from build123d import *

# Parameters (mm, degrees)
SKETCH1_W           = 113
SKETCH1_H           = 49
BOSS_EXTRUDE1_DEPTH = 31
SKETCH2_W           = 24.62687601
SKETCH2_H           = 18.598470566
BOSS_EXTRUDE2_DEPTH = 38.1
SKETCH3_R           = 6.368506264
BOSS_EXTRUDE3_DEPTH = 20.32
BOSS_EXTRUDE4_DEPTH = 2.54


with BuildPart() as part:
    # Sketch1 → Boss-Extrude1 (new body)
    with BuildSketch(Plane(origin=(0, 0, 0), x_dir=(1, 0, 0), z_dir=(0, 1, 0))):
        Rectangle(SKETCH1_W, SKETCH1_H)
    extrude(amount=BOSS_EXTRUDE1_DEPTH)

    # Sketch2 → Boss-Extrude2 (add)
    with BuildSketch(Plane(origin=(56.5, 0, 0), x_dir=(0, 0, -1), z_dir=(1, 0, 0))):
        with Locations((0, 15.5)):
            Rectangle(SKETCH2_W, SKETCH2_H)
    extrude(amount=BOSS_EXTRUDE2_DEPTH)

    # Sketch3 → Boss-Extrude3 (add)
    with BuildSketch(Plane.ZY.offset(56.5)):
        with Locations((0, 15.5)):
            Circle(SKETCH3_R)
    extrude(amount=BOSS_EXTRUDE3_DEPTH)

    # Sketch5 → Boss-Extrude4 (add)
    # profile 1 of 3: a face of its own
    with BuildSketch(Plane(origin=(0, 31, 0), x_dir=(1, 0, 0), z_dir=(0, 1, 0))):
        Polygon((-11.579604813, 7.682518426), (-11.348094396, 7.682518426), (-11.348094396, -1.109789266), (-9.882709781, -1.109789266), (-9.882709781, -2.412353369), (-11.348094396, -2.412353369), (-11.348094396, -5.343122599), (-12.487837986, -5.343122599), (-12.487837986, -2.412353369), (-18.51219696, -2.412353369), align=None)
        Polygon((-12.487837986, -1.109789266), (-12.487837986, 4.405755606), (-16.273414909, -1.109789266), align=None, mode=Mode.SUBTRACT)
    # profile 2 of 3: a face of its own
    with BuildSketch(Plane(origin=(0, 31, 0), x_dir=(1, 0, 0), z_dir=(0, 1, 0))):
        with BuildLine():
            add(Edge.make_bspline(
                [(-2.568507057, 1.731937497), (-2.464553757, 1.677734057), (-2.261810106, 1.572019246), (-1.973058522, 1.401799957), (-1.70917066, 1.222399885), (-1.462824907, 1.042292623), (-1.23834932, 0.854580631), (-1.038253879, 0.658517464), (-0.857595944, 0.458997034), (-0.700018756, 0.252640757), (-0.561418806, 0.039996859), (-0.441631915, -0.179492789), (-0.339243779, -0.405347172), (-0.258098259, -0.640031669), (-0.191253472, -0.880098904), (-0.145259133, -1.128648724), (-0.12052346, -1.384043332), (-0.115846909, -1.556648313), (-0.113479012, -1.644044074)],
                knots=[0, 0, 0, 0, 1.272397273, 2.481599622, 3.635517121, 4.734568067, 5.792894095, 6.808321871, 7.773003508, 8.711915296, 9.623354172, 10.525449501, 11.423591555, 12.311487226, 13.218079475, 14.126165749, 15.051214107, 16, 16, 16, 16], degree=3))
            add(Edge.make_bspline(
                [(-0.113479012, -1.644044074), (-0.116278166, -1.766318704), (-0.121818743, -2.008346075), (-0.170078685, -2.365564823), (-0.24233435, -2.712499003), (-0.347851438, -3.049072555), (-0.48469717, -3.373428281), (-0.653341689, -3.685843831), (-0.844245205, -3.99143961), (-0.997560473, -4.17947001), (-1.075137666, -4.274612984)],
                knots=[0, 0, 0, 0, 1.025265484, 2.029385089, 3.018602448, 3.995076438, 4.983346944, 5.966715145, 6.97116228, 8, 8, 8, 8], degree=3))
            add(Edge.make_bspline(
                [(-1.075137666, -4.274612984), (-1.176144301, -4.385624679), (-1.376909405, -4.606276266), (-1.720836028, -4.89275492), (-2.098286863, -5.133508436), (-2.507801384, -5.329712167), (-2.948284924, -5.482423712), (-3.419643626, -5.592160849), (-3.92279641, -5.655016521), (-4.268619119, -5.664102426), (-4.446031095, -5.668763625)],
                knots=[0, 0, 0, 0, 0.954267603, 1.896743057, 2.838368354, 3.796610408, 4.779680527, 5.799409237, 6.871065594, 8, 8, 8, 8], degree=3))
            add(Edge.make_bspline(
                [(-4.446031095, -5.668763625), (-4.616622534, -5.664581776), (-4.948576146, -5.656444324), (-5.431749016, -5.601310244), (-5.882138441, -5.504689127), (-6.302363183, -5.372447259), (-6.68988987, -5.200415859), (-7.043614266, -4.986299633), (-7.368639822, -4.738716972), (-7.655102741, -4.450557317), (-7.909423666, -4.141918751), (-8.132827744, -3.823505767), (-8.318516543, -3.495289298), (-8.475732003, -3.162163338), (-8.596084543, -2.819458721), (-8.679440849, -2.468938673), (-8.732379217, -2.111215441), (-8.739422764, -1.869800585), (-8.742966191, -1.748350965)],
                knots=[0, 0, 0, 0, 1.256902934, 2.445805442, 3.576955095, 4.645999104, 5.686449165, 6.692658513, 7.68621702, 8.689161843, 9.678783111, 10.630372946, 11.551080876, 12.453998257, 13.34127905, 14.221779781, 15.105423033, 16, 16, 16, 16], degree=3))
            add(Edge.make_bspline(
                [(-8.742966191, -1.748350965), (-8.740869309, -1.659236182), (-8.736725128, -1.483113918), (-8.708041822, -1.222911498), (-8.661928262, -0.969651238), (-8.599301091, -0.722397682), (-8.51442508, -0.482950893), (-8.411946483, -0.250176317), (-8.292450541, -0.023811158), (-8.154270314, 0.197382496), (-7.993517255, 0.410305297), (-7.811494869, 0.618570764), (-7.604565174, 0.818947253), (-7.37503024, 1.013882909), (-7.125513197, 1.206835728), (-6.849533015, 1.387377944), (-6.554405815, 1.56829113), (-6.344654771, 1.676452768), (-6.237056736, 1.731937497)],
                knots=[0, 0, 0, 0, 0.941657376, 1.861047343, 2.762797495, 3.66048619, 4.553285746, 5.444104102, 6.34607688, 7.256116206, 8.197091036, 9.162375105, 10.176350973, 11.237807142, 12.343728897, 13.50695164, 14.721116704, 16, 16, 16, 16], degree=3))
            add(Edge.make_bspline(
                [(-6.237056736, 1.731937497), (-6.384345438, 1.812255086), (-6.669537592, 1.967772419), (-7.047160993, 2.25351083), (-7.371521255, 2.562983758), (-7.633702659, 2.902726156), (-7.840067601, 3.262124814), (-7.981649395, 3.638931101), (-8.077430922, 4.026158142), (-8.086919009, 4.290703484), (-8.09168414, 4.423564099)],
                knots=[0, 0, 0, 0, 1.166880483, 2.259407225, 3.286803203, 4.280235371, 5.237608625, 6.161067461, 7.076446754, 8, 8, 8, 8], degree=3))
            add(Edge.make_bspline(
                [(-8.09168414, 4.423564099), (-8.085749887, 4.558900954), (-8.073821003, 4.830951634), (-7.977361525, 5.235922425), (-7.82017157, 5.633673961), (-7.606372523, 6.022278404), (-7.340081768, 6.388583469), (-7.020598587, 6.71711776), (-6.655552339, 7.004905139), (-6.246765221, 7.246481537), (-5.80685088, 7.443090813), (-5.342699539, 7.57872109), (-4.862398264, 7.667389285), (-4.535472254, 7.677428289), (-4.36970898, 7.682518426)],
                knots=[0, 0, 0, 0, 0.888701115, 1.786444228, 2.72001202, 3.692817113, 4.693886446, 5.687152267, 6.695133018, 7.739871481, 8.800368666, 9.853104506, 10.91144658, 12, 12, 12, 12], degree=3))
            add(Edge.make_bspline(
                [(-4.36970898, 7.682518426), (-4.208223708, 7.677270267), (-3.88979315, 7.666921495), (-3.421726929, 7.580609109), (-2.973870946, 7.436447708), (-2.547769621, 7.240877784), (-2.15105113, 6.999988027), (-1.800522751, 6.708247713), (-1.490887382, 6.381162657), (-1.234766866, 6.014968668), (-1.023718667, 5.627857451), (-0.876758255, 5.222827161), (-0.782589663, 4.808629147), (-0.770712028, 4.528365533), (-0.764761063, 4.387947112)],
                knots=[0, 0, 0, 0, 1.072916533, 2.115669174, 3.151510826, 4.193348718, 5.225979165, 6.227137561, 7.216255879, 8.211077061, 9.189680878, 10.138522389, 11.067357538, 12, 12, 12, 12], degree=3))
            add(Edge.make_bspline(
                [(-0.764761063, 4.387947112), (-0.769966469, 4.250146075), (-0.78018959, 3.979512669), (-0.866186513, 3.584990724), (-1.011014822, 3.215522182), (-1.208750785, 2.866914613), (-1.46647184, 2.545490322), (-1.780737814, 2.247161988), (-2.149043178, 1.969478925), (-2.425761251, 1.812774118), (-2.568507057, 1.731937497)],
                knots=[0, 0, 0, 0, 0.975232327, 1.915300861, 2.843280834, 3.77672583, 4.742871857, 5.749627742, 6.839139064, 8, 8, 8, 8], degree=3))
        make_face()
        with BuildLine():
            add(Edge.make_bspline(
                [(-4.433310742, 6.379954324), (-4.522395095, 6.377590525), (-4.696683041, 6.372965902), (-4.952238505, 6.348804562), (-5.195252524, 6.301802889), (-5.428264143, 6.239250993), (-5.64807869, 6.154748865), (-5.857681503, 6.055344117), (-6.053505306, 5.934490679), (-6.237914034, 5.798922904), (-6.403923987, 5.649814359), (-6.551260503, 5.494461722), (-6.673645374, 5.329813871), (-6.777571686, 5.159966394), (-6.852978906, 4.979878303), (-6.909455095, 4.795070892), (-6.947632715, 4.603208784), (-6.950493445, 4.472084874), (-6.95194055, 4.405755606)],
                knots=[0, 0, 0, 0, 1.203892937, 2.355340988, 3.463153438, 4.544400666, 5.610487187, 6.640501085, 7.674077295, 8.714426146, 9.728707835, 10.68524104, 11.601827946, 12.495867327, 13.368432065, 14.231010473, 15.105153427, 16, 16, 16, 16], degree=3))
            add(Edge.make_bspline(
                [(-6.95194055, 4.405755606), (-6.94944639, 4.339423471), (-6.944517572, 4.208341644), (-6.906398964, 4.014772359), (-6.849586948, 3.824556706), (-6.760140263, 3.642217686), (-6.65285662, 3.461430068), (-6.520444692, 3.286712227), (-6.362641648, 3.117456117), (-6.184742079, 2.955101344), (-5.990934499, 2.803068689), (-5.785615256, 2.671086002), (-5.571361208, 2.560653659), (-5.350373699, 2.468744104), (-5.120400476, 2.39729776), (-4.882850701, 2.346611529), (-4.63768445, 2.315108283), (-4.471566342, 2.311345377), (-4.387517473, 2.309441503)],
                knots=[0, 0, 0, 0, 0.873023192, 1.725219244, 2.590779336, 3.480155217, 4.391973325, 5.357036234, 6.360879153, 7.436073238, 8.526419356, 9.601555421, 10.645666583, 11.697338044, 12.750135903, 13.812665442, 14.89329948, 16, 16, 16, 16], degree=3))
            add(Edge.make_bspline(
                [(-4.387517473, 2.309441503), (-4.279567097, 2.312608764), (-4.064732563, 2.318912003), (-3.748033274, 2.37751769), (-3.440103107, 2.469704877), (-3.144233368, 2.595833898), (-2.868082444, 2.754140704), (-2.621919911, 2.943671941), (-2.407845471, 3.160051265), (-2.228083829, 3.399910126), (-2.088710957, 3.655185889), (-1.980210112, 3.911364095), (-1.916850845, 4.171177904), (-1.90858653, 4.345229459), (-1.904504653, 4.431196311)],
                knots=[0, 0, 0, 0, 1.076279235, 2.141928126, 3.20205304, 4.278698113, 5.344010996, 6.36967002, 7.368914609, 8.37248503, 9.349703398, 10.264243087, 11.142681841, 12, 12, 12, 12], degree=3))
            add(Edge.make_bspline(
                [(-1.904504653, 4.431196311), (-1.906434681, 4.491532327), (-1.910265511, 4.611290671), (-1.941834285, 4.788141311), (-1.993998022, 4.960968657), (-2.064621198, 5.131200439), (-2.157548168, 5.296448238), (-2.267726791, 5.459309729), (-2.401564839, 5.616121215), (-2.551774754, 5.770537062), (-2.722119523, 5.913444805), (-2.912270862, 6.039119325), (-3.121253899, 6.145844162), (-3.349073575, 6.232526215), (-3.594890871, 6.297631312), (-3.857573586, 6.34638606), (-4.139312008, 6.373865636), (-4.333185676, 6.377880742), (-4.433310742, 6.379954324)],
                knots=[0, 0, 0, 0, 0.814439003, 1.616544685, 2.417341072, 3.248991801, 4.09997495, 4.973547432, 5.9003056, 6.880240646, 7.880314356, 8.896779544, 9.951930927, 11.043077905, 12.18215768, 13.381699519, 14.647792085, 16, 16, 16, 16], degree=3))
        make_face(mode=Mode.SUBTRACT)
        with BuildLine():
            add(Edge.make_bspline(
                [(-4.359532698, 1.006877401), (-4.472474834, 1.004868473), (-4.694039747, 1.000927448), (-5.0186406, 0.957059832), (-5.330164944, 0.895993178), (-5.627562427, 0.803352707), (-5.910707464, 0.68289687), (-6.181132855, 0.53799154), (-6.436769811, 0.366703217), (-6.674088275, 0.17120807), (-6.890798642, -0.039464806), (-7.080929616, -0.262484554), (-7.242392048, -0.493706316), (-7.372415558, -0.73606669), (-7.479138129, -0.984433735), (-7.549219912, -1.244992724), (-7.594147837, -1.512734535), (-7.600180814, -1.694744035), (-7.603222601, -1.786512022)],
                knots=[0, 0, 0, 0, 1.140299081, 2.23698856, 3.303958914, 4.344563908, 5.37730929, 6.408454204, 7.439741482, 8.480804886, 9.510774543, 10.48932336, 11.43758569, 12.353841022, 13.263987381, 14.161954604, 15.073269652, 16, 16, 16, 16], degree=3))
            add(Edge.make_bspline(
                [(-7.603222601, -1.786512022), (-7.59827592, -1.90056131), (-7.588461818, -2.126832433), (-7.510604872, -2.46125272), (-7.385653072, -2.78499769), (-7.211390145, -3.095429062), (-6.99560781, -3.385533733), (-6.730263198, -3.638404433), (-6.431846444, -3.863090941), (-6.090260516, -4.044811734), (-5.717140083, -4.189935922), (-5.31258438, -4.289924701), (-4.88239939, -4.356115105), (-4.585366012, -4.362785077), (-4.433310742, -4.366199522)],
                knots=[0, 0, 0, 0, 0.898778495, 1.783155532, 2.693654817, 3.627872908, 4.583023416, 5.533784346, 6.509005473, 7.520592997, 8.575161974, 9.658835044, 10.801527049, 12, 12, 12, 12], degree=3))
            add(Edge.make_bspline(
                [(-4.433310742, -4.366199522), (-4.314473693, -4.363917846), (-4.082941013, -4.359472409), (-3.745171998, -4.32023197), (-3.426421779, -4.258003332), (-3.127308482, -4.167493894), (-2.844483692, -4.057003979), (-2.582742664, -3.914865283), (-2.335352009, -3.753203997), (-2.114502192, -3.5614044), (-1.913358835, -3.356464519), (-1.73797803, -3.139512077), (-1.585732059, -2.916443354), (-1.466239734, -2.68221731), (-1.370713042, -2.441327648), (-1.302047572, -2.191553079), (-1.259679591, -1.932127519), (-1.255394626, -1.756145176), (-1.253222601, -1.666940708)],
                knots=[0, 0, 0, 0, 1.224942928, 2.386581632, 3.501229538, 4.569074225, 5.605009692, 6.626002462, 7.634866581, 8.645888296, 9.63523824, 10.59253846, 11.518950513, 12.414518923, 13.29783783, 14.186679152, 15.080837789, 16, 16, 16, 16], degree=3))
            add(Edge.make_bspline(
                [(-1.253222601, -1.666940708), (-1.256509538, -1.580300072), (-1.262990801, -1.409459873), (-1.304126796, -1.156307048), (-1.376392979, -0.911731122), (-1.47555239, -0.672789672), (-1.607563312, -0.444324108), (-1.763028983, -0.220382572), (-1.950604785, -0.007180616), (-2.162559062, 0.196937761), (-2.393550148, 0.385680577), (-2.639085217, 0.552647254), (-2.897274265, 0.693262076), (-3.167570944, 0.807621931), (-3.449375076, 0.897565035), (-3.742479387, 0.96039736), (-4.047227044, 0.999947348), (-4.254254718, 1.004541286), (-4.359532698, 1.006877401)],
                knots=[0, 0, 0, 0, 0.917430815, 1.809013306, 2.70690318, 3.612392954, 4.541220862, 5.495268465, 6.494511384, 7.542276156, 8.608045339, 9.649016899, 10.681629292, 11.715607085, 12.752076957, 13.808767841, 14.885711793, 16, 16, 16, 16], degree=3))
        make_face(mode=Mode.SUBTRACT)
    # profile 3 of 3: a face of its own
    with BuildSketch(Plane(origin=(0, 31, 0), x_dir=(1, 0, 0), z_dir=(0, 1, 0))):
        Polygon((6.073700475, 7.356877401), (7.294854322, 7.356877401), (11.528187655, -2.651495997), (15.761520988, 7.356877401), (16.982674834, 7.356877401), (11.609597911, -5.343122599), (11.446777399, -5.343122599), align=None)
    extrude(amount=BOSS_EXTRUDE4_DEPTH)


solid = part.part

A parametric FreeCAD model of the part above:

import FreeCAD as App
import Part
import Sketcher

V = App.Vector
Q = App.Units.Quantity


def add_polygon(sketch, points):
    """Adds a closed chain of lines whose ends are joined by coincident constraints."""
    first, n = sketch.GeometryCount, len(points)
    for a, b in zip(points, points[1:] + points[:1]):
        sketch.addGeometry(Part.LineSegment(App.Vector(*a, 0), App.Vector(*b, 0)), False)
    for i in range(n):
        sketch.addConstraint(Sketcher.Constraint("Coincident", first + i, 2, first + (i + 1) % n, 1))

doc = App.newDocument("Part")
params = doc.addObject("Spreadsheet::Sheet", "Params")
for row, (alias, value) in enumerate([
    ("sketch1_width", "113 mm"),
    ("sketch1_height", "49 mm"),
    ("pad1_length", "31 mm"),
    ("pad2_length", "38.1 mm"),
    ("pad3_length", "20.32 mm"),
    ("pad4_length", "2.54 mm"),
], start=1):
    params.set(f"A{row}", alias)
    params.set(f"B{row}", "=" + value)
    params.setAlias(f"B{row}", alias)

body = doc.addObject("PartDesign::Body", "Body")

sketch1 = doc.addObject("Sketcher::SketchObject", "Sketch")
body.addObject(sketch1)
sketch1.AttachmentSupport = (doc.XZ_Plane, [""])
sketch1.MapMode = "FlatFace"
add_polygon(sketch1, [(-56, -24), (-56, 24), (56, 24), (56, -24)])
sketch1.addConstraint([
    Sketcher.Constraint("Vertical", 0),
    Sketcher.Constraint("Horizontal", 1),
    Sketcher.Constraint("Vertical", 2),
    Sketcher.Constraint("Horizontal", 3),
    Sketcher.Constraint("Symmetric", 0, 2, 2, 2, -1, 1),
    Sketcher.Constraint("DistanceX", 1, 1, 1, 2, Q("113 mm")),
    Sketcher.Constraint("DistanceY", 0, 1, 0, 2, Q("49 mm")),
])
sketch1.setExpression("Constraints[9]", "Params.sketch1_width")
sketch1.setExpression("Constraints[10]", "Params.sketch1_height")
pad1 = doc.addObject("PartDesign::Pad", "Pad")
body.addObject(pad1)
pad1.Profile = sketch1
pad1.setExpression("Length", "Params.pad1_length")
pad1.Reversed = True

sketch2 = doc.addObject("Sketcher::SketchObject", "Sketch001")
body.addObject(sketch2)
sketch2.AttachmentSupport = (doc.YZ_Plane, [""])
sketch2.MapMode = "FlatFace"
sketch2.AttachmentOffset = App.Placement(V(0, 0, 56.5), App.Rotation())
add_polygon(sketch2, [(25, 12), (6, 12), (6, -12), (25, -12)])
sketch2.addConstraint([
    Sketcher.Constraint("Horizontal", 0),
    Sketcher.Constraint("Vertical", 1),
    Sketcher.Constraint("Horizontal", 2),
    Sketcher.Constraint("Vertical", 3),
    Sketcher.Constraint("DistanceX", 0, 2, 0, 1, Q("18.598471 mm")),
    Sketcher.Constraint("DistanceY", 1, 2, 1, 1, Q("24.626876 mm")),
    Sketcher.Constraint("DistanceY", -1, 1, 0, 2, Q("12.313438 mm")),
    Sketcher.Constraint("DistanceX", -1, 1, 0, 2, Q("6.200765 mm")),
])
pad2 = doc.addObject("PartDesign::Pad", "Pad001")
body.addObject(pad2)
pad2.Profile = sketch2
pad2.setExpression("Length", "Params.pad2_length")

sketch3 = doc.addObject("Sketcher::SketchObject", "Sketch002")
body.addObject(sketch3)
sketch3.AttachmentSupport = (doc.YZ_Plane, [""])
sketch3.MapMode = "FlatFace"
sketch3.AttachmentOffset = App.Placement(V(0, 0, -56.5), App.Rotation())
sketch3.addGeometry(Part.Circle(V(16, 0, 0), V(0, 0, 1), 6), False)
sketch3.addConstraint([
    Sketcher.Constraint("PointOnObject", 0, 3, -1),
    Sketcher.Constraint("DistanceX", -1, 1, 0, 3, Q("15.5 mm")),
    Sketcher.Constraint("Diameter", 0, Q("12.737013 mm")),
])
pad3 = doc.addObject("PartDesign::Pad", "Pad002")
body.addObject(pad3)
pad3.Profile = sketch3
pad3.setExpression("Length", "Params.pad3_length")
pad3.Reversed = True

sketch4 = doc.addObject("Sketcher::SketchObject", "Sketch003")
body.addObject(sketch4)
sketch4.AttachmentSupport = (doc.XZ_Plane, [""])
sketch4.MapMode = "FlatFace"
sketch4.AttachmentOffset = App.Placement(V(0, 0, -31), App.Rotation())
add_polygon(sketch4, [(-11.348094, -7.682518), (-11.579605, -7.682518), (-18.512197, 2.412353), (-12.487838, 2.412353), (-12.487838, 5.343123), (-11.348094, 5.343123), (-11.348094, 2.412353), (-9.88271, 2.412353), (-9.88271, 1.109789), (-11.348094, 1.109789)])
add_polygon(sketch4, [(-12.487838, 1.109789), (-16.273415, 1.109789), (-12.487838, -4.405756)])
sketch4.addGeometry(Part.BSplineCurve([V(-2.568507, -1.731937, 0), V(-2.464554, -1.677734, 0), V(-2.26181, -1.572019, 0), V(-1.973059, -1.4018, 0), V(-1.709171, -1.2224, 0), V(-1.462825, -1.042293, 0), V(-1.238349, -0.854581, 0), V(-1.038254, -0.658517, 0), V(-0.857596, -0.458997, 0), V(-0.700019, -0.252641, 0), V(-0.561419, -0.039997, 0), V(-0.441632, 0.179493, 0), V(-0.339244, 0.405347, 0), V(-0.258098, 0.640032, 0), V(-0.191253, 0.880099, 0), V(-0.145259, 1.128649, 0), V(-0.120523, 1.384043, 0), V(-0.115847, 1.556648, 0), V(-0.113479, 1.644044, 0)], [4, 1, 1, 1, 1, 1, 1, 1, 1, 1, 1, 1, 1, 1, 1, 1, 4], [0, 1.272397273, 2.481599622, 3.635517121, 4.734568067, 5.792894095, 6.808321871, 7.773003508, 8.711915296, 9.623354172, 10.525449501, 11.423591555, 12.311487226, 13.218079475, 14.126165749, 15.051214107, 16], False, 3, [1, 1, 1, 1, 1, 1, 1, 1, 1, 1, 1, 1, 1, 1, 1, 1, 1, 1, 1], False), False)
sketch4.addGeometry(Part.BSplineCurve([V(-0.764761, -4.387947, 0), V(-0.769966, -4.250146, 0), V(-0.78019, -3.979513, 0), V(-0.866187, -3.584991, 0), V(-1.011015, -3.215522, 0), V(-1.208751, -2.866915, 0), V(-1.466472, -2.54549, 0), V(-1.780738, -2.247162, 0), V(-2.149043, -1.969479, 0), V(-2.425761, -1.812774, 0), V(-2.568507, -1.731937, 0)], [4, 1, 1, 1, 1, 1, 1, 1, 4], [0, 0.975232327, 1.915300861, 2.843280834, 3.77672583, 4.742871857, 5.749627742, 6.839139064, 8], False, 3, [1, 1, 1, 1, 1, 1, 1, 1, 1, 1, 1], False), False)
sketch4.addGeometry(Part.BSplineCurve([V(-4.369709, -7.682518, 0), V(-4.208224, -7.67727, 0), V(-3.889793, -7.666921, 0), V(-3.421727, -7.580609, 0), V(-2.973871, -7.436448, 0), V(-2.54777, -7.240878, 0), V(-2.151051, -6.999988, 0), V(-1.800523, -6.708248, 0), V(-1.490887, -6.381163, 0), V(-1.234767, -6.014969, 0), V(-1.023719, -5.627857, 0), V(-0.876758, -5.222827, 0), V(-0.78259, -4.808629, 0), V(-0.770712, -4.528366, 0), V(-0.764761, -4.387947, 0)], [4, 1, 1, 1, 1, 1, 1, 1, 1, 1, 1, 1, 4], [0, 1.072916533, 2.115669174, 3.151510826, 4.193348718, 5.225979165, 6.227137561, 7.216255879, 8.211077061, 9.189680878, 10.138522389, 11.067357538, 12], False, 3, [1, 1, 1, 1, 1, 1, 1, 1, 1, 1, 1, 1, 1, 1, 1], False), False)
sketch4.addGeometry(Part.BSplineCurve([V(-8.091684, -4.423564, 0), V(-8.08575, -4.558901, 0), V(-8.073821, -4.830952, 0), V(-7.977362, -5.235922, 0), V(-7.820172, -5.633674, 0), V(-7.606373, -6.022278, 0), V(-7.340082, -6.388583, 0), V(-7.020599, -6.717118, 0), V(-6.655552, -7.004905, 0), V(-6.246765, -7.246482, 0), V(-5.806851, -7.443091, 0), V(-5.3427, -7.578721, 0), V(-4.862398, -7.667389, 0), V(-4.535472, -7.677428, 0), V(-4.369709, -7.682518, 0)], [4, 1, 1, 1, 1, 1, 1, 1, 1, 1, 1, 1, 4], [0, 0.888701115, 1.786444228, 2.72001202, 3.692817113, 4.693886446, 5.687152267, 6.695133018, 7.739871481, 8.800368666, 9.853104506, 10.91144658, 12], False, 3, [1, 1, 1, 1, 1, 1, 1, 1, 1, 1, 1, 1, 1, 1, 1], False), False)
sketch4.addGeometry(Part.BSplineCurve([V(-6.237057, -1.731937, 0), V(-6.384345, -1.812255, 0), V(-6.669538, -1.967772, 0), V(-7.047161, -2.253511, 0), V(-7.371521, -2.562984, 0), V(-7.633703, -2.902726, 0), V(-7.840068, -3.262125, 0), V(-7.981649, -3.638931, 0), V(-8.077431, -4.026158, 0), V(-8.086919, -4.290703, 0), V(-8.091684, -4.423564, 0)], [4, 1, 1, 1, 1, 1, 1, 1, 4], [0, 1.166880483, 2.259407225, 3.286803203, 4.280235371, 5.237608625, 6.161067461, 7.076446754, 8], False, 3, [1, 1, 1, 1, 1, 1, 1, 1, 1, 1, 1], False), False)
sketch4.addGeometry(Part.BSplineCurve([V(-8.742966, 1.748351, 0), V(-8.740869, 1.659236, 0), V(-8.736725, 1.483114, 0), V(-8.708042, 1.222911, 0), V(-8.661928, 0.969651, 0), V(-8.599301, 0.722398, 0), V(-8.514425, 0.482951, 0), V(-8.411946, 0.250176, 0), V(-8.292451, 0.023811, 0), V(-8.15427, -0.197382, 0), V(-7.993517, -0.410305, 0), V(-7.811495, -0.618571, 0), V(-7.604565, -0.818947, 0), V(-7.37503, -1.013883, 0), V(-7.125513, -1.206836, 0), V(-6.849533, -1.387378, 0), V(-6.554406, -1.568291, 0), V(-6.344655, -1.676453, 0), V(-6.237057, -1.731937, 0)], [4, 1, 1, 1, 1, 1, 1, 1, 1, 1, 1, 1, 1, 1, 1, 1, 4], [0, 0.941657376, 1.861047343, 2.762797495, 3.66048619, 4.553285746, 5.444104102, 6.34607688, 7.256116206, 8.197091036, 9.162375105, 10.176350973, 11.237807142, 12.343728897, 13.50695164, 14.721116704, 16], False, 3, [1, 1, 1, 1, 1, 1, 1, 1, 1, 1, 1, 1, 1, 1, 1, 1, 1, 1, 1], False), False)
sketch4.addGeometry(Part.BSplineCurve([V(-4.446031, 5.668764, 0), V(-4.616623, 5.664582, 0), V(-4.948576, 5.656444, 0), V(-5.431749, 5.60131, 0), V(-5.882138, 5.504689, 0), V(-6.302363, 5.372447, 0), V(-6.68989, 5.200416, 0), V(-7.043614, 4.9863, 0), V(-7.36864, 4.738717, 0), V(-7.655103, 4.450557, 0), V(-7.909424, 4.141919, 0), V(-8.132828, 3.823506, 0), V(-8.318517, 3.495289, 0), V(-8.475732, 3.162163, 0), V(-8.596085, 2.819459, 0), V(-8.679441, 2.468939, 0), V(-8.732379, 2.111215, 0), V(-8.739423, 1.869801, 0), V(-8.742966, 1.748351, 0)], [4, 1, 1, 1, 1, 1, 1, 1, 1, 1, 1, 1, 1, 1, 1, 1, 4], [0, 1.256902934, 2.445805442, 3.576955095, 4.645999104, 5.686449165, 6.692658513, 7.68621702, 8.689161843, 9.678783111, 10.630372946, 11.551080876, 12.453998257, 13.34127905, 14.221779781, 15.105423033, 16], False, 3, [1, 1, 1, 1, 1, 1, 1, 1, 1, 1, 1, 1, 1, 1, 1, 1, 1, 1, 1], False), False)
sketch4.addGeometry(Part.BSplineCurve([V(-1.075138, 4.274613, 0), V(-1.176144, 4.385625, 0), V(-1.376909, 4.606276, 0), V(-1.720836, 4.892755, 0), V(-2.098287, 5.133508, 0), V(-2.507801, 5.329712, 0), V(-2.948285, 5.482424, 0), V(-3.419644, 5.592161, 0), V(-3.922796, 5.655017, 0), V(-4.268619, 5.664102, 0), V(-4.446031, 5.668764, 0)], [4, 1, 1, 1, 1, 1, 1, 1, 4], [0, 0.954267603, 1.896743057, 2.838368354, 3.796610408, 4.779680527, 5.799409237, 6.871065594, 8], False, 3, [1, 1, 1, 1, 1, 1, 1, 1, 1, 1, 1], False), False)
sketch4.addGeometry(Part.BSplineCurve([V(-0.113479, 1.644044, 0), V(-0.116278, 1.766319, 0), V(-0.121819, 2.008346, 0), V(-0.170079, 2.365565, 0), V(-0.242334, 2.712499, 0), V(-0.347851, 3.049073, 0), V(-0.484697, 3.373428, 0), V(-0.653342, 3.685844, 0), V(-0.844245, 3.99144, 0), V(-0.99756, 4.17947, 0), V(-1.075138, 4.274613, 0)], [4, 1, 1, 1, 1, 1, 1, 1, 4], [0, 1.025265484, 2.029385089, 3.018602448, 3.995076438, 4.983346944, 5.966715145, 6.97116228, 8], False, 3, [1, 1, 1, 1, 1, 1, 1, 1, 1, 1, 1], False), False)
sketch4.addGeometry(Part.BSplineCurve([V(-1.253223, 1.666941, 0), V(-1.25651, 1.5803, 0), V(-1.262991, 1.40946, 0), V(-1.304127, 1.156307, 0), V(-1.376393, 0.911731, 0), V(-1.475552, 0.67279, 0), V(-1.607563, 0.444324, 0), V(-1.763029, 0.220383, 0), V(-1.950605, 0.007181, 0), V(-2.162559, -0.196938, 0), V(-2.39355, -0.385681, 0), V(-2.639085, -0.552647, 0), V(-2.897274, -0.693262, 0), V(-3.167571, -0.807622, 0), V(-3.449375, -0.897565, 0), V(-3.742479, -0.960397, 0), V(-4.047227, -0.999947, 0), V(-4.254255, -1.004541, 0), V(-4.359533, -1.006877, 0)], [4, 1, 1, 1, 1, 1, 1, 1, 1, 1, 1, 1, 1, 1, 1, 1, 4], [0, 0.917430815, 1.809013306, 2.70690318, 3.612392954, 4.541220862, 5.495268465, 6.494511384, 7.542276156, 8.608045339, 9.649016899, 10.681629292, 11.715607085, 12.752076957, 13.808767841, 14.885711793, 16], False, 3, [1, 1, 1, 1, 1, 1, 1, 1, 1, 1, 1, 1, 1, 1, 1, 1, 1, 1, 1], False), False)
sketch4.addGeometry(Part.BSplineCurve([V(-4.433311, 4.3662, 0), V(-4.314474, 4.363918, 0), V(-4.082941, 4.359472, 0), V(-3.745172, 4.320232, 0), V(-3.426422, 4.258003, 0), V(-3.127308, 4.167494, 0), V(-2.844484, 4.057004, 0), V(-2.582743, 3.914865, 0), V(-2.335352, 3.753204, 0), V(-2.114502, 3.561404, 0), V(-1.913359, 3.356465, 0), V(-1.737978, 3.139512, 0), V(-1.585732, 2.916443, 0), V(-1.46624, 2.682217, 0), V(-1.370713, 2.441328, 0), V(-1.302048, 2.191553, 0), V(-1.25968, 1.932128, 0), V(-1.255395, 1.756145, 0), V(-1.253223, 1.666941, 0)], [4, 1, 1, 1, 1, 1, 1, 1, 1, 1, 1, 1, 1, 1, 1, 1, 4], [0, 1.224942928, 2.386581632, 3.501229538, 4.569074225, 5.605009692, 6.626002462, 7.634866581, 8.645888296, 9.63523824, 10.59253846, 11.518950513, 12.414518923, 13.29783783, 14.186679152, 15.080837789, 16], False, 3, [1, 1, 1, 1, 1, 1, 1, 1, 1, 1, 1, 1, 1, 1, 1, 1, 1, 1, 1], False), False)
sketch4.addGeometry(Part.BSplineCurve([V(-7.603223, 1.786512, 0), V(-7.598276, 1.900561, 0), V(-7.588462, 2.126832, 0), V(-7.510605, 2.461253, 0), V(-7.385653, 2.784998, 0), V(-7.21139, 3.095429, 0), V(-6.995608, 3.385534, 0), V(-6.730263, 3.638404, 0), V(-6.431846, 3.863091, 0), V(-6.090261, 4.044812, 0), V(-5.71714, 4.189936, 0), V(-5.312584, 4.289925, 0), V(-4.882399, 4.356115, 0), V(-4.585366, 4.362785, 0), V(-4.433311, 4.3662, 0)], [4, 1, 1, 1, 1, 1, 1, 1, 1, 1, 1, 1, 4], [0, 0.898778495, 1.783155532, 2.693654817, 3.627872908, 4.583023416, 5.533784346, 6.509005473, 7.520592997, 8.575161974, 9.658835044, 10.801527049, 12], False, 3, [1, 1, 1, 1, 1, 1, 1, 1, 1, 1, 1, 1, 1, 1, 1], False), False)
sketch4.addGeometry(Part.BSplineCurve([V(-4.359533, -1.006877, 0), V(-4.472475, -1.004868, 0), V(-4.69404, -1.000927, 0), V(-5.018641, -0.95706, 0), V(-5.330165, -0.895993, 0), V(-5.627562, -0.803353, 0), V(-5.910707, -0.682897, 0), V(-6.181133, -0.537992, 0), V(-6.43677, -0.366703, 0), V(-6.674088, -0.171208, 0), V(-6.890799, 0.039465, 0), V(-7.08093, 0.262485, 0), V(-7.242392, 0.493706, 0), V(-7.372416, 0.736067, 0), V(-7.479138, 0.984434, 0), V(-7.54922, 1.244993, 0), V(-7.594148, 1.512735, 0), V(-7.600181, 1.694744, 0), V(-7.603223, 1.786512, 0)], [4, 1, 1, 1, 1, 1, 1, 1, 1, 1, 1, 1, 1, 1, 1, 1, 4], [0, 1.140299081, 2.23698856, 3.303958914, 4.344563908, 5.37730929, 6.408454204, 7.439741482, 8.480804886, 9.510774543, 10.48932336, 11.43758569, 12.353841022, 13.263987381, 14.161954604, 15.073269652, 16], False, 3, [1, 1, 1, 1, 1, 1, 1, 1, 1, 1, 1, 1, 1, 1, 1, 1, 1, 1, 1], False), False)
sketch4.addGeometry(Part.BSplineCurve([V(-1.904505, -4.431196, 0), V(-1.906435, -4.491532, 0), V(-1.910266, -4.611291, 0), V(-1.941834, -4.788141, 0), V(-1.993998, -4.960969, 0), V(-2.064621, -5.1312, 0), V(-2.157548, -5.296448, 0), V(-2.267727, -5.45931, 0), V(-2.401565, -5.616121, 0), V(-2.551775, -5.770537, 0), V(-2.72212, -5.913445, 0), V(-2.912271, -6.039119, 0), V(-3.121254, -6.145844, 0), V(-3.349074, -6.232526, 0), V(-3.594891, -6.297631, 0), V(-3.857574, -6.346386, 0), V(-4.139312, -6.373866, 0), V(-4.333186, -6.377881, 0), V(-4.433311, -6.379954, 0)], [4, 1, 1, 1, 1, 1, 1, 1, 1, 1, 1, 1, 1, 1, 1, 1, 4], [0, 0.814439003, 1.616544685, 2.417341072, 3.248991801, 4.09997495, 4.973547432, 5.9003056, 6.880240646, 7.880314356, 8.896779544, 9.951930927, 11.043077905, 12.18215768, 13.381699519, 14.647792085, 16], False, 3, [1, 1, 1, 1, 1, 1, 1, 1, 1, 1, 1, 1, 1, 1, 1, 1, 1, 1, 1], False), False)
sketch4.addGeometry(Part.BSplineCurve([V(-4.387517, -2.309442, 0), V(-4.279567, -2.312609, 0), V(-4.064733, -2.318912, 0), V(-3.748033, -2.377518, 0), V(-3.440103, -2.469705, 0), V(-3.144233, -2.595834, 0), V(-2.868082, -2.754141, 0), V(-2.62192, -2.943672, 0), V(-2.407845, -3.160051, 0), V(-2.228084, -3.39991, 0), V(-2.088711, -3.655186, 0), V(-1.98021, -3.911364, 0), V(-1.916851, -4.171178, 0), V(-1.908587, -4.345229, 0), V(-1.904505, -4.431196, 0)], [4, 1, 1, 1, 1, 1, 1, 1, 1, 1, 1, 1, 4], [0, 1.076279235, 2.141928126, 3.20205304, 4.278698113, 5.344010996, 6.36967002, 7.368914609, 8.37248503, 9.349703398, 10.264243087, 11.142681841, 12], False, 3, [1, 1, 1, 1, 1, 1, 1, 1, 1, 1, 1, 1, 1, 1, 1], False), False)
sketch4.addGeometry(Part.BSplineCurve([V(-6.951941, -4.405756, 0), V(-6.949446, -4.339423, 0), V(-6.944518, -4.208342, 0), V(-6.906399, -4.014772, 0), V(-6.849587, -3.824557, 0), V(-6.76014, -3.642218, 0), V(-6.652857, -3.46143, 0), V(-6.520445, -3.286712, 0), V(-6.362642, -3.117456, 0), V(-6.184742, -2.955101, 0), V(-5.990934, -2.803069, 0), V(-5.785615, -2.671086, 0), V(-5.571361, -2.560654, 0), V(-5.350374, -2.468744, 0), V(-5.1204, -2.397298, 0), V(-4.882851, -2.346612, 0), V(-4.637684, -2.315108, 0), V(-4.471566, -2.311345, 0), V(-4.387517, -2.309442, 0)], [4, 1, 1, 1, 1, 1, 1, 1, 1, 1, 1, 1, 1, 1, 1, 1, 4], [0, 0.873023192, 1.725219244, 2.590779336, 3.480155217, 4.391973325, 5.357036234, 6.360879153, 7.436073238, 8.526419356, 9.601555421, 10.645666583, 11.697338044, 12.750135903, 13.812665442, 14.89329948, 16], False, 3, [1, 1, 1, 1, 1, 1, 1, 1, 1, 1, 1, 1, 1, 1, 1, 1, 1, 1, 1], False), False)
sketch4.addGeometry(Part.BSplineCurve([V(-4.433311, -6.379954, 0), V(-4.522395, -6.377591, 0), V(-4.696683, -6.372966, 0), V(-4.952239, -6.348805, 0), V(-5.195253, -6.301803, 0), V(-5.428264, -6.239251, 0), V(-5.648079, -6.154749, 0), V(-5.857682, -6.055344, 0), V(-6.053505, -5.934491, 0), V(-6.237914, -5.798923, 0), V(-6.403924, -5.649814, 0), V(-6.551261, -5.494462, 0), V(-6.673645, -5.329814, 0), V(-6.777572, -5.159966, 0), V(-6.852979, -4.979878, 0), V(-6.909455, -4.795071, 0), V(-6.947633, -4.603209, 0), V(-6.950493, -4.472085, 0), V(-6.951941, -4.405756, 0)], [4, 1, 1, 1, 1, 1, 1, 1, 1, 1, 1, 1, 1, 1, 1, 1, 4], [0, 1.203892937, 2.355340988, 3.463153438, 4.544400666, 5.610487187, 6.640501085, 7.674077295, 8.714426146, 9.728707835, 10.68524104, 11.601827946, 12.495867327, 13.368432065, 14.231010473, 15.105153427, 16], False, 3, [1, 1, 1, 1, 1, 1, 1, 1, 1, 1, 1, 1, 1, 1, 1, 1, 1, 1, 1], False), False)
add_polygon(sketch4, [(7.294854, -7.356877), (6.0737, -7.356877), (11.446777, 5.343123), (11.609598, 5.343123), (16.982675, -7.356877), (15.761521, -7.356877), (11.528188, 2.651496)])
sketch4.addConstraint([
    Sketcher.Constraint("Block", 13),
    Sketcher.Constraint("Block", 14),
    Sketcher.Constraint("Block", 15),
    Sketcher.Constraint("Block", 16),
    Sketcher.Constraint("Block", 17),
    Sketcher.Constraint("Block", 18),
    Sketcher.Constraint("Block", 19),
    Sketcher.Constraint("Block", 20),
    Sketcher.Constraint("Block", 21),
    Sketcher.Constraint("Block", 22),
    Sketcher.Constraint("Block", 23),
    Sketcher.Constraint("Block", 24),
    Sketcher.Constraint("Block", 25),
    Sketcher.Constraint("Block", 26),
    Sketcher.Constraint("Block", 27),
    Sketcher.Constraint("Block", 28),
    Sketcher.Constraint("Block", 29),
    Sketcher.Constraint("Horizontal", 0),
    Sketcher.Constraint("Horizontal", 2),
    Sketcher.Constraint("Vertical", 3),
    Sketcher.Constraint("Horizontal", 4),
    Sketcher.Constraint("Vertical", 5),
    Sketcher.Constraint("Horizontal", 6),
    Sketcher.Constraint("Vertical", 7),
    Sketcher.Constraint("Horizontal", 8),
    Sketcher.Constraint("Vertical", 9),
    Sketcher.Constraint("Horizontal", 10),
    Sketcher.Constraint("Vertical", 12),
    Sketcher.Constraint("Horizontal", 30),
    Sketcher.Constraint("Horizontal", 32),
    Sketcher.Constraint("Horizontal", 34),
    Sketcher.Constraint("Horizontal", 2, 2, 5, 2),
    Sketcher.Constraint("Horizontal", 8, 2, 10, 2),
    Sketcher.Constraint("Horizontal", 4, 2, 31, 2),
    Sketcher.Constraint("Horizontal", 30, 2, 33, 2),
    Sketcher.Constraint("Vertical", 5, 2, 8, 2),
    Sketcher.Constraint("Vertical", 3, 2, 11, 2),
    Sketcher.Constraint("Equal", 30, 34),
    Sketcher.Constraint("Equal", 31, 33),
    Sketcher.Constraint("Equal", 35, 36),
    Sketcher.Constraint("DistanceY", 30, 2, 31, 2, Q("12.7 mm")),
    Sketcher.Constraint("DistanceX", 0, 2, 0, 1, Q("0.23151 mm")),
    Sketcher.Constraint("DistanceX", 2, 1, 2, 2, Q("6.024359 mm")),
    Sketcher.Constraint("DistanceX", 32, 1, 32, 2, Q("0.162821 mm")),
    Sketcher.Constraint("DistanceY", 3, 1, 3, 2, Q("2.930769 mm")),
    Sketcher.Constraint("DistanceX", -1, 1, 30, 2, Q("6.0737 mm")),
    Sketcher.Constraint("Distance", 11, Q("6.689681 mm")),
    Sketcher.Constraint("Distance", 31, Q("13.78985 mm")),
    Sketcher.Constraint("Distance", 35, Q("10.86686 mm")),
    Sketcher.Constraint("DistanceX", 4, 1, 4, 2, Q("1.139744 mm")),
    Sketcher.Constraint("DistanceX", 6, 1, 6, 2, Q("1.465385 mm")),
    Sketcher.Constraint("DistanceX", 10, 2, 10, 1, Q("3.785577 mm")),
    Sketcher.Constraint("DistanceX", 30, 2, 30, 1, Q("1.221154 mm")),
    Sketcher.Constraint("DistanceY", 7, 2, 7, 1, Q("1.302564 mm")),
    Sketcher.Constraint("DistanceY", 9, 2, 9, 1, Q("8.792308 mm")),
    Sketcher.Constraint("DistanceY", 0, 2, -1, 1, Q("7.682518 mm")),
    Sketcher.Constraint("DistanceX", 6, 2, -1, 1, Q("9.88271 mm")),
])
pad4 = doc.addObject("PartDesign::Pad", "Pad003")
body.addObject(pad4)
pad4.Profile = sketch4
pad4.setExpression("Length", "Params.pad4_length")
pad4.Reversed = True

doc.recompute()
